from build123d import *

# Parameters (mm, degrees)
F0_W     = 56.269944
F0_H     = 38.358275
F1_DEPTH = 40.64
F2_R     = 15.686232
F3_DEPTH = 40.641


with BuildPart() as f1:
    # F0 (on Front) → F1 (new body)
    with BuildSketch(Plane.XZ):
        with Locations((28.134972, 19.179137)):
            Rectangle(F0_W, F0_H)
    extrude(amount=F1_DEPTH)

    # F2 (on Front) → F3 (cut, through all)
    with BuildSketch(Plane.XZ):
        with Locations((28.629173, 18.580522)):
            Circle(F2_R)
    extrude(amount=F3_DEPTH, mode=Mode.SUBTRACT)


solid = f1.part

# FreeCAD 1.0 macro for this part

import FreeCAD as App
import Part
import Sketcher
from FreeCAD import Vector
Q = App.Units.Quantity

doc = App.newDocument("Part")
body = doc.addObject("PartDesign::Body", "Body")

# Sketch on XZ plane
sketch1 = doc.addObject("Sketcher::SketchObject", "Sketch")
body.addObject(sketch1)
sketch1.AttachmentSupport = (doc.XZ_Plane, [""])
sketch1.MapMode = "FlatFace"
sketch1.addGeometry(Part.LineSegment(Vector(0, 38, 0), Vector(0, 0, 0)), False)
sketch1.addGeometry(Part.LineSegment(Vector(0, 0, 0), Vector(56, 0, 0)), False)
sketch1.addGeometry(Part.LineSegment(Vector(56, 0, 0), Vector(56, 38, 0)), False)
sketch1.addGeometry(Part.LineSegment(Vector(56, 38, 0), Vector(0, 38, 0)), False)
sketch1.addConstraint(Sketcher.Constraint("Coincident", 0, 2, 1, 1))
sketch1.addConstraint(Sketcher.Constraint("Coincident", 1, 2, 2, 1))
sketch1.addConstraint(Sketcher.Constraint("Coincident", 2, 2, 3, 1))
sketch1.addConstraint(Sketcher.Constraint("Coincident", 3, 2, 0, 1))
sketch1.addConstraint(Sketcher.Constraint("Vertical", 0))
sketch1.addConstraint(Sketcher.Constraint("Horizontal", 1))
sketch1.addConstraint(Sketcher.Constraint("Vertical", 2))
sketch1.addConstraint(Sketcher.Constraint("Horizontal", 3))
sketch1.addConstraint(Sketcher.Constraint("Coincident", 0, 2, -1, 1))
sketch1.addConstraint(Sketcher.Constraint("DistanceX", 1, 1, 1, 2, Q("56.269944 mm")))
sketch1.addConstraint(Sketcher.Constraint("DistanceY", 0, 2, 0, 1, Q("38.358275 mm")))
pad1 = doc.addObject("PartDesign::Pad", "Pad")
body.addObject(pad1)
pad1.Profile = sketch1
pad1.Length = Q("1.6 in")

# Sketch on XZ plane
sketch2 = doc.addObject("Sketcher::SketchObject", "Sketch001")
body.addObject(sketch2)
sketch2.AttachmentSupport = (doc.XZ_Plane, [""])
sketch2.MapMode = "FlatFace"
sketch2.addGeometry(Part.Circle(Vector(29, 19, 0), Vector(0, 0, 1), 16), False)
sketch2.addConstraint(Sketcher.Constraint("Diameter", 0, Q("31.372464 mm")))
sketch2.addConstraint(Sketcher.Constraint("DistanceY", -1, 1, 0, 3, Q("18.580522 mm")))
sketch2.addConstraint(Sketcher.Constraint("DistanceX", -1, 1, 0, 3, Q("28.629173 mm")))
pocket1 = doc.addObject("PartDesign::Pocket", "Pocket")
body.addObject(pocket1)
pocket1.Profile = sketch2
pocket1.Type = "ThroughAll"
pocket1.Reversed = True

doc.recompute()
